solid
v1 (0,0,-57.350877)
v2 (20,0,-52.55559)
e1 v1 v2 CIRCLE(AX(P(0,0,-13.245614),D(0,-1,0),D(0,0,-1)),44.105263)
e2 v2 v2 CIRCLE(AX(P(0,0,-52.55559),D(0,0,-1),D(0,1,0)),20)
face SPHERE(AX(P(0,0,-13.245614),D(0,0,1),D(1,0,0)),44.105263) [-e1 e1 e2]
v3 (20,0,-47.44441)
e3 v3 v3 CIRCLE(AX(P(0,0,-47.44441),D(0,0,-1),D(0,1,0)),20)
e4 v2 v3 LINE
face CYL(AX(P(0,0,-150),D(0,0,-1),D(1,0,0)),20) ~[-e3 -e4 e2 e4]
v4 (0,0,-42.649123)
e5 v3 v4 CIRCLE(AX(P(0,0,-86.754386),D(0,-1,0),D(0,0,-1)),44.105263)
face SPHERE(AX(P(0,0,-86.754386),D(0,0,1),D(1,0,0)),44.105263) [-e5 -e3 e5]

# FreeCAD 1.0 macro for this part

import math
import FreeCAD as App
import Part
import Sketcher
from FreeCAD import Vector
Q = App.Units.Quantity

doc = App.newDocument("Part")
body = doc.addObject("PartDesign::Body", "Body")

sketch1 = body.newObject("Sketcher::SketchObject", "Sketch")
sketch1.AttachmentSupport = (doc.getObject("XY_Plane"), [""])
sketch1.MapMode = "FlatFace"
sketch1.AttachmentOffset = App.Placement(Vector(0, 0, -100), App.Rotation())
sketch1.addGeometry(Part.Circle(Vector(0, 0, 0), Vector(0, 0, 1), 20), False)
sketch1.addConstraint([
    Sketcher.Constraint("Coincident", 0, 3, -1, 1),
    Sketcher.Constraint("Diameter", 0, Q("40 mm")),
])
pad1 = body.newObject("PartDesign::Pad", "Pad")
pad1.Profile = sketch1
pad1.Length = 200
body2 = doc.addObject("PartDesign::Body", "Body001")

sketch2 = body2.newObject("Sketcher::SketchObject", "Sketch001")
sketch2.AttachmentSupport = (doc.getObject("XZ_Plane001"), [""])
sketch2.MapMode = "FlatFace"
sketch2.addGeometry([
    Part.ArcOfCircle(Part.Circle(Vector(0, -37, 0), Vector(0, 0, 1), 44), math.radians(-90), math.radians(90)),
    Part.LineSegment(Vector(0, 7, 0), Vector(0, -81, 0)),
], False)
sketch2.addConstraint([
    Sketcher.Constraint("Coincident", 0, 1, 1, 2),
    Sketcher.Constraint("Coincident", 1, 1, 0, 2),
    Sketcher.Constraint("Vertical", 1),
    Sketcher.Constraint("PointOnObject", 0, 3, -2),
    Sketcher.Constraint("PointOnObject", 0, 1, -2),
    Sketcher.Constraint("Radius", 0, Q("44.105263 mm")),
    Sketcher.Constraint("DistanceY", 0, 1, -1, 1, Q("80.859649 mm")),
])
revolution = body2.newObject("PartDesign::Revolution", "Revolution")
revolution.Profile = sketch2
revolution.ReferenceAxis = (sketch2, ["V_Axis"])
revolution.Angle = 360
body3 = doc.addObject("PartDesign::Body", "Body002")

sketch3 = body3.newObject("Sketcher::SketchObject", "Sketch002")
sketch3.AttachmentSupport = (doc.getObject("XZ_Plane002"), [""])
sketch3.MapMode = "FlatFace"
sketch3.addGeometry([
    Part.ArcOfCircle(Part.Circle(Vector(0, 37, 0), Vector(0, 0, 1), 44), math.radians(-90), math.radians(90)),
    Part.LineSegment(Vector(0, 81, 0), Vector(0, -7, 0)),
], False)
sketch3.addConstraint([
    Sketcher.Constraint("Coincident", 0, 1, 1, 2),
    Sketcher.Constraint("Coincident", 1, 1, 0, 2),
    Sketcher.Constraint("Vertical", 1),
    Sketcher.Constraint("PointOnObject", 0, 3, -2),
    Sketcher.Constraint("PointOnObject", 0, 1, -2),
    Sketcher.Constraint("Radius", 0, Q("44.105263 mm")),
    Sketcher.Constraint("DistanceY", -1, 1, 1, 1, Q("80.859649 mm")),
])
revolution2 = body3.newObject("PartDesign::Revolution", "Revolution001")
revolution2.Profile = sketch3
revolution2.ReferenceAxis = (sketch3, ["V_Axis"])
revolution2.Angle = 360
doc.recompute()

boolean = body3.newObject("PartDesign::Boolean", "Boolean")
boolean.Type = "Common"
boolean.addObjects([body2])
doc.recompute()

boolean2 = body3.newObject("PartDesign::Boolean", "Boolean001")
boolean2.Type = "Common"
boolean2.addObjects([body])
body4 = doc.addObject("PartDesign::Body", "Body003")
doc.recompute()

body3.Placement = App.Placement(Vector(0, 0, -50), App.Rotation(Vector(0, 0, 1), 0))
boolean3 = body4.newObject("PartDesign::Boolean", "Boolean002")
boolean3.Type = "Fuse"
boolean3.addObjects([body3])

doc.recompute()
